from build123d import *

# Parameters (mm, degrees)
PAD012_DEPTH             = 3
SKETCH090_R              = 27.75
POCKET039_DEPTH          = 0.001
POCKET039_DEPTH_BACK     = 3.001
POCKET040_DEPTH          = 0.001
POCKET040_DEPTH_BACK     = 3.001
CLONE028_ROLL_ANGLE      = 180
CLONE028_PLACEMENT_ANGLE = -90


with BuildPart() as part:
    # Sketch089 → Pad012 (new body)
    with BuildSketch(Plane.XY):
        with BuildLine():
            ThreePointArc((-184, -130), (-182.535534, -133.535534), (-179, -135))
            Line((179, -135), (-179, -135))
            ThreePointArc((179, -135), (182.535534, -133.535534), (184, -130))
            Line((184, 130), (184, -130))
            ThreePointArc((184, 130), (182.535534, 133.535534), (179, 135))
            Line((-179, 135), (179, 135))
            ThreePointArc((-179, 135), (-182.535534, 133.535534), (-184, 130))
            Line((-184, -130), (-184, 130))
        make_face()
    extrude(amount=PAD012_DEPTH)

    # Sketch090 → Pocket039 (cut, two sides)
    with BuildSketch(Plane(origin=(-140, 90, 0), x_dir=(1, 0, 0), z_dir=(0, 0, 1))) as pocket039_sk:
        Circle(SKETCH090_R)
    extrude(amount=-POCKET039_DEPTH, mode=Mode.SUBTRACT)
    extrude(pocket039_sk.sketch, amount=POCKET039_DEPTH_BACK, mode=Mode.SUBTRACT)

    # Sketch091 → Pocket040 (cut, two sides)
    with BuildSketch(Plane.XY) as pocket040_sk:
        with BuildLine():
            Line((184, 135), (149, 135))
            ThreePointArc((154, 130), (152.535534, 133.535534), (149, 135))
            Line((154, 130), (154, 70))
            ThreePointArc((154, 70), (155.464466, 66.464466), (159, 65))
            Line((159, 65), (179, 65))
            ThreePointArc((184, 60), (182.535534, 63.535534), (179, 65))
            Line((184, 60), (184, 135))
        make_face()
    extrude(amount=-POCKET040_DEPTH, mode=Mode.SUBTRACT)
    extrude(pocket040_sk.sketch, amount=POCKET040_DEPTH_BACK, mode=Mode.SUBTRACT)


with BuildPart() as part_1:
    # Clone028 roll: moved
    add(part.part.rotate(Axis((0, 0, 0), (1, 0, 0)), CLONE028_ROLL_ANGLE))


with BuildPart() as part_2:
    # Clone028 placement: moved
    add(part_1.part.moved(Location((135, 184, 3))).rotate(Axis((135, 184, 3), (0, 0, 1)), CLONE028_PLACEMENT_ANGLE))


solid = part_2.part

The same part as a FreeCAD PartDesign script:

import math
import FreeCAD as App
import Part
import Sketcher
from FreeCAD import Vector
Q = App.Units.Quantity

doc = App.newDocument("Part")
body = doc.addObject("PartDesign::Body", "Body")

# Sketch on XY plane
sketch1 = body.newObject("Sketcher::SketchObject", "Sketch")
sketch1.AttachmentSupport = (doc.getObject("XY_Plane"), [""])
sketch1.MapMode = "FlatFace"
sketch1.addGeometry(Part.ArcOfCircle(Part.Circle(Vector(-179, -130, 0), Vector(0, 0, 1), 5), math.radians(179.999996), math.radians(270.000004)), False)
sketch1.addGeometry(Part.LineSegment(Vector(-179, -135, 0), Vector(179, -135, 0)), False)
sketch1.addGeometry(Part.ArcOfCircle(Part.Circle(Vector(179, -130, 0), Vector(0, 0, 1), 5), math.radians(-90.000004), math.radians(0.000004)), False)
sketch1.addGeometry(Part.LineSegment(Vector(184, -130, 0), Vector(184, 130, 0)), False)
sketch1.addGeometry(Part.ArcOfCircle(Part.Circle(Vector(179, 130, 0), Vector(0, 0, 1), 5), math.radians(-0.000004), math.radians(90.000004)), False)
sketch1.addGeometry(Part.LineSegment(Vector(179, 135, 0), Vector(-179, 135, 0)), False)
sketch1.addGeometry(Part.ArcOfCircle(Part.Circle(Vector(-179, 130, 0), Vector(0, 0, 1), 5), math.radians(89.999996), math.radians(180.000004)), False)
sketch1.addGeometry(Part.LineSegment(Vector(-184, 130, 0), Vector(-184, -130, 0)), False)
sketch1.addConstraint(Sketcher.Constraint("Tangent", 0, 2, 1, 1))
sketch1.addConstraint(Sketcher.Constraint("Tangent", 1, 2, 2, 1))
sketch1.addConstraint(Sketcher.Constraint("Tangent", 2, 2, 3, 1))
sketch1.addConstraint(Sketcher.Constraint("Tangent", 3, 2, 4, 1))
sketch1.addConstraint(Sketcher.Constraint("Tangent", 4, 2, 5, 1))
sketch1.addConstraint(Sketcher.Constraint("Tangent", 5, 2, 6, 1))
sketch1.addConstraint(Sketcher.Constraint("Tangent", 6, 2, 7, 1))
sketch1.addConstraint(Sketcher.Constraint("Tangent", 7, 2, 0, 1))
sketch1.addConstraint(Sketcher.Constraint("Horizontal", 1))
sketch1.addConstraint(Sketcher.Constraint("Vertical", 3))
sketch1.addConstraint(Sketcher.Constraint("Horizontal", 5))
sketch1.addConstraint(Sketcher.Constraint("Vertical", 7))
sketch1.addConstraint(Sketcher.Constraint("Equal", 0, 2))
sketch1.addConstraint(Sketcher.Constraint("Equal", 2, 4))
sketch1.addConstraint(Sketcher.Constraint("Equal", 4, 6))
sketch1.addConstraint(Sketcher.Constraint("Symmetric", 0, 3, 4, 3, -1, 1))
sketch1.addConstraint(Sketcher.Constraint("Radius", 0, Q("5 mm")))
sketch1.addConstraint(Sketcher.Constraint("DistanceX", 1, 1, 1, 2, Q("358 mm")))
sketch1.addConstraint(Sketcher.Constraint("DistanceY", 3, 1, 3, 2, Q("260 mm")))
pad1 = body.newObject("PartDesign::Pad", "Pad")
pad1.Profile = sketch1
pad1.Length = 3

# Sketch on XY plane
sketch2 = body.newObject("Sketcher::SketchObject", "Sketch001")
sketch2.AttachmentSupport = (doc.getObject("XY_Plane"), [""])
sketch2.MapMode = "FlatFace"
sketch2.addGeometry(Part.Circle(Vector(-140, 90, 0), Vector(0, 0, 1), 27.75), False)
sketch2.addConstraint(Sketcher.Constraint("Diameter", 0, Q("55.5 mm")))
sketch2.addConstraint(Sketcher.Constraint("DistanceX", 0, 3, -1, 1, Q("140 mm")))
sketch2.addConstraint(Sketcher.Constraint("DistanceY", -1, 1, 0, 3, Q("90 mm")))
pocket1 = body.newObject("PartDesign::Pocket", "Pocket")
pocket1.Profile = sketch2
pocket1.Type = "ThroughAll"
pocket1.Midplane = True

# Sketch on XY plane
sketch3 = body.newObject("Sketcher::SketchObject", "Sketch002")
sketch3.AttachmentSupport = (doc.getObject("XY_Plane"), [""])
sketch3.MapMode = "FlatFace"
sketch3.addGeometry(Part.LineSegment(Vector(184, 135, 0), Vector(149, 135, 0)), False)
sketch3.addGeometry(Part.ArcOfCircle(Part.Circle(Vector(149, 130, 0), Vector(0, 0, 1), 5), math.radians(-0.000004), math.radians(90.000004)), False)
sketch3.addGeometry(Part.LineSegment(Vector(154, 130, 0), Vector(154, 70, 0)), False)
sketch3.addGeometry(Part.ArcOfCircle(Part.Circle(Vector(159, 70, 0), Vector(0, 0, 1), 5), math.radians(179.999996), math.radians(270.000004)), False)
sketch3.addGeometry(Part.LineSegment(Vector(159, 65, 0), Vector(179, 65, 0)), False)
sketch3.addGeometry(Part.ArcOfCircle(Part.Circle(Vector(179, 60, 0), Vector(0, 0, 1), 5), math.radians(-0.000004), math.radians(90.000004)), False)
sketch3.addGeometry(Part.LineSegment(Vector(184, 60, 0), Vector(184, 135, 0)), False)
sketch3.addConstraint(Sketcher.Constraint("Tangent", 0, 2, 1, 2))
sketch3.addConstraint(Sketcher.Constraint("Tangent", 1, 1, 2, 1))
sketch3.addConstraint(Sketcher.Constraint("Tangent", 2, 2, 3, 1))
sketch3.addConstraint(Sketcher.Constraint("Tangent", 3, 2, 4, 1))
sketch3.addConstraint(Sketcher.Constraint("Tangent", 4, 2, 5, 2))
sketch3.addConstraint(Sketcher.Constraint("Tangent", 5, 1, 6, 1))
sketch3.addConstraint(Sketcher.Constraint("Coincident", 6, 2, 0, 1))
sketch3.addConstraint(Sketcher.Constraint("Horizontal", 0))
sketch3.addConstraint(Sketcher.Constraint("Vertical", 2))
sketch3.addConstraint(Sketcher.Constraint("Horizontal", 4))
sketch3.addConstraint(Sketcher.Constraint("Vertical", 6))
sketch3.addConstraint(Sketcher.Constraint("Equal", 1, 3))
sketch3.addConstraint(Sketcher.Constraint("Equal", 3, 5))
sketch3.addConstraint(Sketcher.Constraint("Radius", 1, Q("5 mm")))
sketch3.addConstraint(Sketcher.Constraint("DistanceX", 0, 2, 0, 1, Q("35 mm")))
sketch3.addConstraint(Sketcher.Constraint("DistanceY", 2, 2, 2, 1, Q("60 mm")))
sketch3.addConstraint(Sketcher.Constraint("DistanceX", -1, 1, 1, 3, Q("149 mm")))
sketch3.addConstraint(Sketcher.Constraint("DistanceY", -1, 1, 1, 3, Q("130 mm")))
pocket2 = body.newObject("PartDesign::Pocket", "Pocket001")
pocket2.Profile = sketch3
pocket2.Type = "ThroughAll"
pocket2.Midplane = True
body2 = doc.addObject("PartDesign::Body", "Body001")
doc.recompute()

body.Placement = App.Placement(Vector(0, 0, 0), App.Rotation(Vector(1, 0, 0), 180))
boolean = body2.newObject("PartDesign::Boolean", "Boolean")
boolean.Type = "Fuse"
boolean.addObjects([body])
body3 = doc.addObject("PartDesign::Body", "Body002")
doc.recompute()

body2.Placement = App.Placement(Vector(135, 184, 3), App.Rotation(Vector(0, 0, 1), 270))
boolean2 = body3.newObject("PartDesign::Boolean", "Boolean001")
boolean2.Type = "Fuse"
boolean2.addObjects([body2])

doc.recompute()
